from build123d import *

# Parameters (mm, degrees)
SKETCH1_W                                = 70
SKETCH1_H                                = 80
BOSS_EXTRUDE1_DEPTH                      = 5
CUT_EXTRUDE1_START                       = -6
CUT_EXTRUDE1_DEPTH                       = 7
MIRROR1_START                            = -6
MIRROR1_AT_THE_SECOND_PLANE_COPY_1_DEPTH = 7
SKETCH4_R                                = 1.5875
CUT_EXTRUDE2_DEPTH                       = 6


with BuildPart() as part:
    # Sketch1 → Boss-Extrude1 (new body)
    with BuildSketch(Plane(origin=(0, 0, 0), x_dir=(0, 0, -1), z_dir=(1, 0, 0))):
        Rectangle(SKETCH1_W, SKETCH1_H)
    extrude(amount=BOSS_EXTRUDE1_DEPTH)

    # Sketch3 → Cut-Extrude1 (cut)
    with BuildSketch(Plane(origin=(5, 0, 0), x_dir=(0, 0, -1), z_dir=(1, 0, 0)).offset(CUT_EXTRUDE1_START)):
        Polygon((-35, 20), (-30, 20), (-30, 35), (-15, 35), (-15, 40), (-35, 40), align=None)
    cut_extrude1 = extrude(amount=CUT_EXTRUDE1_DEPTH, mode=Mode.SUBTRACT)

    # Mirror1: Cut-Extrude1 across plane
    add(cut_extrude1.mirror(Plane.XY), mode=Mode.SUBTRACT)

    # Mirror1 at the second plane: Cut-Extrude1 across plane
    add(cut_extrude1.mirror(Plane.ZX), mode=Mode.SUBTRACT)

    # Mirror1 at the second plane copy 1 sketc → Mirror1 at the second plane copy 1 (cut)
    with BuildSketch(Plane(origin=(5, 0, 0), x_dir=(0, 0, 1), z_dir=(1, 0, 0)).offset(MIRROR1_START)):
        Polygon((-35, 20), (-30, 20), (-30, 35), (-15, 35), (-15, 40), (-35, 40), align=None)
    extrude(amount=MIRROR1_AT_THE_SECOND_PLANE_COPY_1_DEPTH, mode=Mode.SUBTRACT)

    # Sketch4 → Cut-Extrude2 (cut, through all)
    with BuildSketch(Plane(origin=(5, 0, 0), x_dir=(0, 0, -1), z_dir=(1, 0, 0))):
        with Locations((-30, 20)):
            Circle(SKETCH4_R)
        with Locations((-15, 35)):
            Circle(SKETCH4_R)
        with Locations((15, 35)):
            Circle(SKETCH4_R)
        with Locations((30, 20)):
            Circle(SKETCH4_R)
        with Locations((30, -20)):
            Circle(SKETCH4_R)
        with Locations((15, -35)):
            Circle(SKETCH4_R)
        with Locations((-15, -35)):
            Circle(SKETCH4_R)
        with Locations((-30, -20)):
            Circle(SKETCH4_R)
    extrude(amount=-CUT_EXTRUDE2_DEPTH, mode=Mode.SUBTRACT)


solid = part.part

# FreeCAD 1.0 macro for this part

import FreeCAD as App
import Part
import Sketcher
Q = App.Units.Quantity

doc = App.newDocument("Part")
body = doc.addObject("PartDesign::Body", "Body")

sketch1 = body.newObject("Sketcher::SketchObject", "Sketch")
sketch1.AttachmentSupport = (doc.getObject("YZ_Plane"), [""])
sketch1.MapMode = "FlatFace"
sketch1.addGeometry([
    Part.LineSegment(App.Vector(40, 35, 0), App.Vector(-40, 35, 0)),
    Part.LineSegment(App.Vector(-40, 35, 0), App.Vector(-40, -35, 0)),
    Part.LineSegment(App.Vector(-40, -35, 0), App.Vector(40, -35, 0)),
    Part.LineSegment(App.Vector(40, -35, 0), App.Vector(40, 35, 0)),
], False)
sketch1.addConstraint([
    Sketcher.Constraint("Coincident", 0, 2, 1, 1),
    Sketcher.Constraint("Coincident", 1, 2, 2, 1),
    Sketcher.Constraint("Coincident", 2, 2, 3, 1),
    Sketcher.Constraint("Coincident", 3, 2, 0, 1),
    Sketcher.Constraint("Horizontal", 0),
    Sketcher.Constraint("Vertical", 1),
    Sketcher.Constraint("Horizontal", 2),
    Sketcher.Constraint("Vertical", 3),
    Sketcher.Constraint("Symmetric", 0, 2, 2, 2, -1, 1),
    Sketcher.Constraint("DistanceX", 0, 2, 0, 1, Q("80 mm")),
    Sketcher.Constraint("DistanceY", 1, 2, 1, 1, Q("70 mm")),
])
pad1 = body.newObject("PartDesign::Pad", "Pad")
pad1.Profile = sketch1
pad1.Length = 5

sketch2 = body.newObject("Sketcher::SketchObject", "Sketch001")
sketch2.AttachmentSupport = (doc.getObject("YZ_Plane"), [""])
sketch2.MapMode = "FlatFace"
sketch2.AttachmentOffset = App.Placement(App.Vector(0, 0, -1), App.Rotation())
sketch2.addGeometry([
    Part.LineSegment(App.Vector(20, 35, 0), App.Vector(20, 30, 0)),
    Part.LineSegment(App.Vector(20, 30, 0), App.Vector(35, 30, 0)),
    Part.LineSegment(App.Vector(35, 30, 0), App.Vector(35, 15, 0)),
    Part.LineSegment(App.Vector(35, 15, 0), App.Vector(40, 15, 0)),
    Part.LineSegment(App.Vector(40, 15, 0), App.Vector(40, 35, 0)),
    Part.LineSegment(App.Vector(40, 35, 0), App.Vector(20, 35, 0)),
], False)
sketch2.addConstraint([
    Sketcher.Constraint("Coincident", 0, 2, 1, 1),
    Sketcher.Constraint("Coincident", 1, 2, 2, 1),
    Sketcher.Constraint("Coincident", 2, 2, 3, 1),
    Sketcher.Constraint("Coincident", 3, 2, 4, 1),
    Sketcher.Constraint("Coincident", 4, 2, 5, 1),
    Sketcher.Constraint("Coincident", 5, 2, 0, 1),
    Sketcher.Constraint("Vertical", 0),
    Sketcher.Constraint("Horizontal", 1),
    Sketcher.Constraint("Vertical", 2),
    Sketcher.Constraint("Horizontal", 3),
    Sketcher.Constraint("Vertical", 4),
    Sketcher.Constraint("Horizontal", 5),
    Sketcher.Constraint("Equal", 3, 0),
    Sketcher.Constraint("Equal", 1, 2),
    Sketcher.Constraint("DistanceX", 1, 1, 1, 2, Q("15 mm")),
    Sketcher.Constraint("DistanceX", 3, 1, 3, 2, Q("5 mm")),
    Sketcher.Constraint("DistanceX", -1, 1, 0, 2, Q("20 mm")),
    Sketcher.Constraint("DistanceY", -1, 1, 0, 2, Q("30 mm")),
])
pocket1 = body.newObject("PartDesign::Pocket", "Pocket")
pocket1.Profile = sketch2
pocket1.Length = 7
pocket1.Reversed = True
doc.recompute()

mirrored = body.newObject("PartDesign::Mirrored", "Mirrored")
mirrored.Originals = [pocket1]
mirrored.MirrorPlane = (doc.getObject("XY_Plane"), [""])
body.Tip = mirrored
doc.recompute()

mirrored2 = body.newObject("PartDesign::Mirrored", "Mirrored001")
mirrored2.Originals = [pocket1]
mirrored2.MirrorPlane = (doc.getObject("XZ_Plane"), [""])
body.Tip = mirrored2

sketch3 = body.newObject("Sketcher::SketchObject", "Sketch002")
sketch3.AttachmentSupport = (doc.getObject("YZ_Plane"), [""])
sketch3.MapMode = "FlatFace"
sketch3.AttachmentOffset = App.Placement(App.Vector(0, 0, -1), App.Rotation())
sketch3.addGeometry([
    Part.LineSegment(App.Vector(-20, -35, 0), App.Vector(-20, -30, 0)),
    Part.LineSegment(App.Vector(-20, -30, 0), App.Vector(-35, -30, 0)),
    Part.LineSegment(App.Vector(-35, -30, 0), App.Vector(-35, -15, 0)),
    Part.LineSegment(App.Vector(-35, -15, 0), App.Vector(-40, -15, 0)),
    Part.LineSegment(App.Vector(-40, -15, 0), App.Vector(-40, -35, 0)),
    Part.LineSegment(App.Vector(-40, -35, 0), App.Vector(-20, -35, 0)),
], False)
sketch3.addConstraint([
    Sketcher.Constraint("Coincident", 0, 2, 1, 1),
    Sketcher.Constraint("Coincident", 1, 2, 2, 1),
    Sketcher.Constraint("Coincident", 2, 2, 3, 1),
    Sketcher.Constraint("Coincident", 3, 2, 4, 1),
    Sketcher.Constraint("Coincident", 4, 2, 5, 1),
    Sketcher.Constraint("Coincident", 5, 2, 0, 1),
    Sketcher.Constraint("Vertical", 0),
    Sketcher.Constraint("Horizontal", 1),
    Sketcher.Constraint("Vertical", 2),
    Sketcher.Constraint("Horizontal", 3),
    Sketcher.Constraint("Vertical", 4),
    Sketcher.Constraint("Horizontal", 5),
    Sketcher.Constraint("Equal", 3, 0),
    Sketcher.Constraint("Equal", 1, 2),
    Sketcher.Constraint("DistanceX", 1, 2, 1, 1, Q("15 mm")),
    Sketcher.Constraint("DistanceX", 3, 2, 3, 1, Q("5 mm")),
    Sketcher.Constraint("DistanceX", 0, 2, -1, 1, Q("20 mm")),
    Sketcher.Constraint("DistanceY", 0, 2, -1, 1, Q("30 mm")),
])
pocket2 = body.newObject("PartDesign::Pocket", "Pocket001")
pocket2.Profile = sketch3
pocket2.Length = 7
pocket2.Reversed = True

sketch4 = body.newObject("Sketcher::SketchObject", "Sketch003")
sketch4.AttachmentSupport = (doc.getObject("YZ_Plane"), [""])
sketch4.MapMode = "FlatFace"
sketch4.AttachmentOffset = App.Placement(App.Vector(0, 0, 5), App.Rotation())
sketch4.addGeometry([
    Part.Circle(App.Vector(20, 30, 0), App.Vector(0, 0, 1), 1.6),
    Part.Circle(App.Vector(35, 15, 0), App.Vector(0, 0, 1), 1.6),
    Part.Circle(App.Vector(35, -15, 0), App.Vector(0, 0, 1), 1.6),
    Part.Circle(App.Vector(20, -30, 0), App.Vector(0, 0, 1), 1.6),
    Part.Circle(App.Vector(-20, -30, 0), App.Vector(0, 0, 1), 1.6),
    Part.Circle(App.Vector(-35, -15, 0), App.Vector(0, 0, 1), 1.6),
    Part.Circle(App.Vector(-35, 15, 0), App.Vector(0, 0, 1), 1.6),
    Part.Circle(App.Vector(-20, 30, 0), App.Vector(0, 0, 1), 1.6),
], False)
sketch4.addConstraint([
    Sketcher.Constraint("Equal", 0, 1),
    Sketcher.Constraint("Equal", 1, 2),
    Sketcher.Constraint("Equal", 2, 3),
    Sketcher.Constraint("Equal", 3, 4),
    Sketcher.Constraint("Equal", 4, 5),
    Sketcher.Constraint("Equal", 5, 6),
    Sketcher.Constraint("Equal", 6, 7),
    Sketcher.Constraint("Symmetric", 0, 3, 4, 3, -1, 1),
    Sketcher.Constraint("Symmetric", 1, 3, 5, 3, -1, 1),
    Sketcher.Constraint("Symmetric", 2, 3, 6, 3, -1, 1),
    Sketcher.Constraint("Symmetric", 3, 3, 7, 3, -1, 1),
    Sketcher.Constraint("Symmetric", 3, 3, 4, 3, -2),
    Sketcher.Constraint("Symmetric", 2, 3, 5, 3, -2),
    Sketcher.Constraint("Diameter", 0, Q("3.175 mm")),
    Sketcher.Constraint("DistanceX", -1, 1, 0, 3, Q("20 mm")),
    Sketcher.Constraint("DistanceY", -1, 1, 0, 3, Q("30 mm")),
    Sketcher.Constraint("DistanceX", -1, 1, 1, 3, Q("35 mm")),
    Sketcher.Constraint("DistanceY", -1, 1, 1, 3, Q("15 mm")),
])
pocket3 = body.newObject("PartDesign::Pocket", "Pocket002")
pocket3.Profile = sketch4
pocket3.Type = "ThroughAll"

doc.recompute()
